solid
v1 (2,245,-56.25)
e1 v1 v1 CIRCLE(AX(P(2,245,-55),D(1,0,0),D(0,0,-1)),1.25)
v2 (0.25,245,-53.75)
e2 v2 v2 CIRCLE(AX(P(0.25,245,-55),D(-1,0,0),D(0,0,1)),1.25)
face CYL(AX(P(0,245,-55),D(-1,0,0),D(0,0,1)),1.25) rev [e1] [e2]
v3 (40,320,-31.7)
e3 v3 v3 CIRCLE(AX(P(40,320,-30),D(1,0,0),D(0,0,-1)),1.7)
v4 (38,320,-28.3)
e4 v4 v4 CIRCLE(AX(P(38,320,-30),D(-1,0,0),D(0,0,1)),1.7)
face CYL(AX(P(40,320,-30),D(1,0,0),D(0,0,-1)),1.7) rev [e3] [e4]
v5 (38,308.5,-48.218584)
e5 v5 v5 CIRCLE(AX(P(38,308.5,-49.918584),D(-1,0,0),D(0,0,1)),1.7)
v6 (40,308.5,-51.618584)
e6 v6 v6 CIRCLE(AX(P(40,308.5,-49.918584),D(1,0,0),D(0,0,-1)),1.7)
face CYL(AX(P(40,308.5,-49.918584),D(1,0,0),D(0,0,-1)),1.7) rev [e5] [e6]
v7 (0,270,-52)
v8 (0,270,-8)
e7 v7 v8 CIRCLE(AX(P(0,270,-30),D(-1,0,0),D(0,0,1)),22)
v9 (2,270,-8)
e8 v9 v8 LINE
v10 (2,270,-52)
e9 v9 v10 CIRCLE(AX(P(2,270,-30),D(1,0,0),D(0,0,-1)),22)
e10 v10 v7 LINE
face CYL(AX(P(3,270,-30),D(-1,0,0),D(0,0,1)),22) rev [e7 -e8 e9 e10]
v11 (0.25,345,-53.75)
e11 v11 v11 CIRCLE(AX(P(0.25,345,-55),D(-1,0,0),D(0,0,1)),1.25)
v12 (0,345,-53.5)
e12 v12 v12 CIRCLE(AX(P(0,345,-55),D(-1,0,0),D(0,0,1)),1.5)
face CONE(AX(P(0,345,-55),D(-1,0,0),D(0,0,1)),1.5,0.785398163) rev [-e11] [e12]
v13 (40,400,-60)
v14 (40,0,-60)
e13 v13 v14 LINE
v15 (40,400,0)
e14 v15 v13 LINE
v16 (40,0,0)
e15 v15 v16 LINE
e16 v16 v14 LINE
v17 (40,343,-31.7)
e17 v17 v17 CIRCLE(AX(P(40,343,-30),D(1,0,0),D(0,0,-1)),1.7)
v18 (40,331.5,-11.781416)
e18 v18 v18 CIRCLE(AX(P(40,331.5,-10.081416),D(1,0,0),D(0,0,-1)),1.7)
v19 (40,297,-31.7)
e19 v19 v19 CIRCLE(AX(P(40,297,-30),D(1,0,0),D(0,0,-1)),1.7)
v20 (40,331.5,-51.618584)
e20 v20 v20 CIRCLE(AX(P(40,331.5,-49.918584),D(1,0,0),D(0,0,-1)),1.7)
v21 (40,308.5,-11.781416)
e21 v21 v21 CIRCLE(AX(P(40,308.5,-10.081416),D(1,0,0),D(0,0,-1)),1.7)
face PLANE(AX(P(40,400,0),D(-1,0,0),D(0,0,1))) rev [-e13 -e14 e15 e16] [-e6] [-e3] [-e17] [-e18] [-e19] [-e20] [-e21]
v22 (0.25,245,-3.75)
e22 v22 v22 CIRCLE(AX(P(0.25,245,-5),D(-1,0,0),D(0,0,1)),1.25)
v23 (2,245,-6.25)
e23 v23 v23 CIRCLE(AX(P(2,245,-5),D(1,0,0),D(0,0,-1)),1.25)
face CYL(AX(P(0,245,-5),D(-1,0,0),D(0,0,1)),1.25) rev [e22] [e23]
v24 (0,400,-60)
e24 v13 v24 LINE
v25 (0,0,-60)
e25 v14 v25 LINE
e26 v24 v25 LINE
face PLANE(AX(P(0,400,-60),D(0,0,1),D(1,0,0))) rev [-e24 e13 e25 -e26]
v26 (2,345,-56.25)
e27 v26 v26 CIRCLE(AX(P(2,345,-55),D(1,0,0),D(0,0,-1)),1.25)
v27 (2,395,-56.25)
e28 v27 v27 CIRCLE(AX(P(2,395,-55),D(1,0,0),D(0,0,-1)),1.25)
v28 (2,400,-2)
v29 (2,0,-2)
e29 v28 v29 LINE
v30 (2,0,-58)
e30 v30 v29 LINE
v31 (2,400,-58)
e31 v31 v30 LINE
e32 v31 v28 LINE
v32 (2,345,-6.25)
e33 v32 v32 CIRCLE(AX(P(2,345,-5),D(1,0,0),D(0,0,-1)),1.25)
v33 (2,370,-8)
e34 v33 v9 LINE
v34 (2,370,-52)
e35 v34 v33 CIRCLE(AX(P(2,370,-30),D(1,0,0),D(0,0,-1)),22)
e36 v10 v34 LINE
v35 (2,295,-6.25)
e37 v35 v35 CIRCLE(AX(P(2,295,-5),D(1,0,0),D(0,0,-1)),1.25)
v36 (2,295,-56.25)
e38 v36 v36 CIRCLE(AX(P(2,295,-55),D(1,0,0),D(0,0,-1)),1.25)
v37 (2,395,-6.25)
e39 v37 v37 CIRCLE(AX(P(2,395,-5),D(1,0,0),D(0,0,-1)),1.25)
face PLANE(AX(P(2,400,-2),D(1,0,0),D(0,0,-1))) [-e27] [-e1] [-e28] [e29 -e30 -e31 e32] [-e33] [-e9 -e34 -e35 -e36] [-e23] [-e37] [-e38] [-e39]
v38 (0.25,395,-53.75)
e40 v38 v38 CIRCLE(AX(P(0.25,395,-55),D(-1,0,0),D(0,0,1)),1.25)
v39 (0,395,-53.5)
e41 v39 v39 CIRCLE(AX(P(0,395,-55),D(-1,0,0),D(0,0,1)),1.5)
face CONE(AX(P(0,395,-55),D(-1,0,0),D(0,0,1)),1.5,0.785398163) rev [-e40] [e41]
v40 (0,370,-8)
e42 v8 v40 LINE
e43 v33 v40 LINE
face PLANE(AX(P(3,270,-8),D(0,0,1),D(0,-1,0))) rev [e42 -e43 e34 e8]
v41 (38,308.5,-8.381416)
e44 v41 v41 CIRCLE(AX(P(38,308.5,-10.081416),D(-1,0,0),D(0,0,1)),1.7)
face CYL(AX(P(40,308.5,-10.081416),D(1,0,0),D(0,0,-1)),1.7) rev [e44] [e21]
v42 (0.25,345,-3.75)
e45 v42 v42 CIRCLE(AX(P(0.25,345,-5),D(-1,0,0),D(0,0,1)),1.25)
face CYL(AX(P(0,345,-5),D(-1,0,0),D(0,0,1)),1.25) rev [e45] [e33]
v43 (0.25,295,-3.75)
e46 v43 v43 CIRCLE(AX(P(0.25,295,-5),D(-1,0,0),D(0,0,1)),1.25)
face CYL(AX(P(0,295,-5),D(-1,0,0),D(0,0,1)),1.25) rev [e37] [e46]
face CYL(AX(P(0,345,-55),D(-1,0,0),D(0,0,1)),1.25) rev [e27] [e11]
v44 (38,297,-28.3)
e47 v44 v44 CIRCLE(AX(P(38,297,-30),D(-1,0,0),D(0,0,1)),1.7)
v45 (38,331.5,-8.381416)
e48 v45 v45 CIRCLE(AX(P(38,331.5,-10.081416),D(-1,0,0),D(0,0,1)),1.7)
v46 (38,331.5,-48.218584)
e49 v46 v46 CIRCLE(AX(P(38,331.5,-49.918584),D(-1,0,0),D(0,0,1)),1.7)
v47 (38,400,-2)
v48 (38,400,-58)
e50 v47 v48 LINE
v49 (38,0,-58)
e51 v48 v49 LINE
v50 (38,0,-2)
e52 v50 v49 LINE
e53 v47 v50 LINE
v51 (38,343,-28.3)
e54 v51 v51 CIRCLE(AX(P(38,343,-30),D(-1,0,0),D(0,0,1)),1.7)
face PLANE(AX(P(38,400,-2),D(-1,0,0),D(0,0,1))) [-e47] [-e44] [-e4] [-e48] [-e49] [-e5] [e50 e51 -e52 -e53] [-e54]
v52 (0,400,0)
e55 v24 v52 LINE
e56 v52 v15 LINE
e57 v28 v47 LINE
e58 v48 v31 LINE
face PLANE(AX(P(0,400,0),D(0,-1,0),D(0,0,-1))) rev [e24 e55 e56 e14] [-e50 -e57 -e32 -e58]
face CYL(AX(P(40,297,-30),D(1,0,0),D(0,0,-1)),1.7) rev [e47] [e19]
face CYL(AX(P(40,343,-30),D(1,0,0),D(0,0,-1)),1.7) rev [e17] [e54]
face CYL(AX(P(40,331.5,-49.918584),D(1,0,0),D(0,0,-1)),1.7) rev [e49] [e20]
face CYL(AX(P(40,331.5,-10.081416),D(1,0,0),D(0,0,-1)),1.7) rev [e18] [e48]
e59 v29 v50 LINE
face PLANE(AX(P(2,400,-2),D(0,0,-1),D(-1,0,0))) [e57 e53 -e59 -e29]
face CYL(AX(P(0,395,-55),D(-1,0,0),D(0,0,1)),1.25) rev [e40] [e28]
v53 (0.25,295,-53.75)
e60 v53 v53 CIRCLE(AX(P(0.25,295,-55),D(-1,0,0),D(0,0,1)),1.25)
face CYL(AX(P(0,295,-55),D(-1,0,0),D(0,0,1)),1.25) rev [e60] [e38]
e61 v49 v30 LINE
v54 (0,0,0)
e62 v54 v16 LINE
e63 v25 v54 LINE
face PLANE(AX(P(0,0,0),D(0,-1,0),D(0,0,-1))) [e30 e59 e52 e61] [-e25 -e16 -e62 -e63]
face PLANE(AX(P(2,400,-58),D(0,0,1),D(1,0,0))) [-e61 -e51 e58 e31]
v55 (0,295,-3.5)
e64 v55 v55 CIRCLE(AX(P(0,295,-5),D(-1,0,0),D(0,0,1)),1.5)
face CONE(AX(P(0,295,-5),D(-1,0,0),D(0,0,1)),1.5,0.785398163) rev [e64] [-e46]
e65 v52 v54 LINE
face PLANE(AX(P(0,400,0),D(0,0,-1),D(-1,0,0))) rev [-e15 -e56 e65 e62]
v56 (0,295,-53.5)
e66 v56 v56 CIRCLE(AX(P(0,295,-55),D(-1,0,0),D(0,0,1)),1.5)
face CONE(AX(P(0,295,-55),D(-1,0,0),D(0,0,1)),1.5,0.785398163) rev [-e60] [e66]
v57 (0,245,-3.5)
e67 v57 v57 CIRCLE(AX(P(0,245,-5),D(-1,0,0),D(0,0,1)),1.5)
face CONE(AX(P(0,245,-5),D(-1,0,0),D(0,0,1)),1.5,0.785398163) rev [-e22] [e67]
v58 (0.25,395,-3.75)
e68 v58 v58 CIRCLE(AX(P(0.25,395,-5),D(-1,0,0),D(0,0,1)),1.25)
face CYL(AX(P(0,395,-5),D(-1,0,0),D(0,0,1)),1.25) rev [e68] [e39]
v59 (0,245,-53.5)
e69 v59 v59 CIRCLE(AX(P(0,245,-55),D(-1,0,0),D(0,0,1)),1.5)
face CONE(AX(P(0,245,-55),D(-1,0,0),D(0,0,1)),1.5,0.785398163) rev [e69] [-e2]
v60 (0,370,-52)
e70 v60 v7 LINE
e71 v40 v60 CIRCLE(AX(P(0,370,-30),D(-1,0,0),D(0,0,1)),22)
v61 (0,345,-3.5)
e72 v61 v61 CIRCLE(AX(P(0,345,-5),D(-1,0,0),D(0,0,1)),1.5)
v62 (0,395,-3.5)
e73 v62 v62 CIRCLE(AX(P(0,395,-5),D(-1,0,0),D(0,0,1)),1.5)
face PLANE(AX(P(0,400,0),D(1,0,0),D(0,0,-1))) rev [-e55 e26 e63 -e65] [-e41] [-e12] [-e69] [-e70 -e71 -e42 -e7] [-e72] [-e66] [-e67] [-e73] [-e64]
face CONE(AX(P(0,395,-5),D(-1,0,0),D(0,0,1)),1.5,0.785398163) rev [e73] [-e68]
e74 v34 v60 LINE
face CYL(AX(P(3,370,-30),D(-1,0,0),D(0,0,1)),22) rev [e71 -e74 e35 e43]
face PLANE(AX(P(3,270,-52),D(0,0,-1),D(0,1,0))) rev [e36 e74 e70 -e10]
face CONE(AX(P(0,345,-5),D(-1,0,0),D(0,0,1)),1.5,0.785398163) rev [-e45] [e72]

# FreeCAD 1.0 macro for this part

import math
import FreeCAD as App
import Part
import Sketcher
from FreeCAD import Vector

doc = App.newDocument("Part")
params = doc.addObject("Spreadsheet::Sheet", "Params")
for row, (alias, value) in enumerate([
    ("sketch1_width", "40 mm"),
    ("sketch1_width2", "36 mm"),
    ("sketch1_height", "60 mm"),
    ("sketch1_height2", "56 mm"),
    ("pad1_length", "400 mm"),
    ("sketch2_diameter", "3.4 mm"),
    ("hole_diameter", "3.4 mm"),
    ("sketch3_radius", "22 mm"),
    ("sketch3_width", "100 mm"),
    ("pocket1_length", "3 mm"),
    ("sketch4_diameter", "2.5 mm"),
    ("hole2_diameter", "2.5 mm"),
    ("hole2_depth", "2 mm"),
    ("hole2_csink_diameter", "3 mm"),
], start=1):
    params.set(f"A{row}", alias)
    params.set(f"B{row}", "=" + value)
    params.setAlias(f"B{row}", alias)

body = doc.addObject("PartDesign::Body", "Body")

# Sketch on XZ plane
sketch1 = body.newObject("Sketcher::SketchObject", "Sketch")
sketch1.AttachmentSupport = (doc.getObject("XZ_Plane"), [""])
sketch1.MapMode = "FlatFace"
sketch1.addGeometry([
    Part.LineSegment(Vector(0, -60, 0), Vector(0, 0, 0)),  # 0
    Part.LineSegment(Vector(0, 0, 0), Vector(40, 0, 0)),  # 1
    Part.LineSegment(Vector(40, 0, 0), Vector(40, -60, 0)),  # 2
    Part.LineSegment(Vector(40, -60, 0), Vector(0, -60, 0)),  # 3
    Part.LineSegment(Vector(38, -2, 0), Vector(2, -2, 0)),  # 4
    Part.LineSegment(Vector(2, -2, 0), Vector(2, -58, 0)),  # 5
    Part.LineSegment(Vector(2, -58, 0), Vector(38, -58, 0)),  # 6
    Part.LineSegment(Vector(38, -58, 0), Vector(38, -2, 0)),  # 7
], False)
sketch1.addConstraint([
    Sketcher.Constraint("Coincident", 0, 2, 1, 1),
    Sketcher.Constraint("Coincident", 1, 2, 2, 1),
    Sketcher.Constraint("Coincident", 2, 2, 3, 1),
    Sketcher.Constraint("Coincident", 3, 2, 0, 1),
    Sketcher.Constraint("Coincident", 4, 2, 5, 1),
    Sketcher.Constraint("Coincident", 5, 2, 6, 1),
    Sketcher.Constraint("Coincident", 6, 2, 7, 1),
    Sketcher.Constraint("Coincident", 7, 2, 4, 1),
    Sketcher.Constraint("Vertical", 0),
    Sketcher.Constraint("Horizontal", 1),
    Sketcher.Constraint("Vertical", 2),
    Sketcher.Constraint("Horizontal", 3),
    Sketcher.Constraint("Horizontal", 4),
    Sketcher.Constraint("Vertical", 5),
    Sketcher.Constraint("Horizontal", 6),
    Sketcher.Constraint("Vertical", 7),
    Sketcher.Constraint("Coincident", 0, 2, -1, 1),
    Sketcher.Constraint("DistanceX", 1, 1, 1, 2, 40.0),
    Sketcher.Constraint("DistanceX", 4, 2, 4, 1, 36.0),
    Sketcher.Constraint("DistanceY", 0, 1, 0, 2, 60.0),
    Sketcher.Constraint("DistanceY", 5, 2, 5, 1, 56.0),
    Sketcher.Constraint("DistanceX", -1, 1, 4, 2, 2.0),
    Sketcher.Constraint("DistanceY", 4, 2, -1, 1, 2.0),
])
sketch1.setExpression("Constraints[17]", "Params.sketch1_width")
sketch1.setExpression("Constraints[18]", "Params.sketch1_width2")
sketch1.setExpression("Constraints[19]", "Params.sketch1_height")
sketch1.setExpression("Constraints[20]", "Params.sketch1_height2")
pad1 = body.newObject("PartDesign::Pad", "Pad")
pad1.Profile = sketch1
pad1.setExpression("Length", "Params.pad1_length")
pad1.Reversed = True

# Sketch on YZ plane
sketch2 = body.newObject("Sketcher::SketchObject", "Sketch001")
sketch2.AttachmentSupport = (doc.getObject("YZ_Plane"), [""])
sketch2.MapMode = "FlatFace"
sketch2.AttachmentOffset = App.Placement(Vector(0, 0, 40), App.Rotation())
sketch2.addGeometry([
    Part.Circle(Vector(320, -30, 0), Vector(0, 0, 1), 1.7),  # 0
    Part.Circle(Vector(343, -30, 0), Vector(0, 0, 1), 1.7),  # 1
    Part.Circle(Vector(331.5, -49.9, 0), Vector(0, 0, 1), 1.7),  # 2
    Part.Circle(Vector(308.5, -49.9, 0), Vector(0, 0, 1), 1.7),  # 3
    Part.Circle(Vector(297, -30, 0), Vector(0, 0, 1), 1.7),  # 4
    Part.Circle(Vector(308.5, -10.1, 0), Vector(0, 0, 1), 1.7),  # 5
    Part.Circle(Vector(331.5, -10.1, 0), Vector(0, 0, 1), 1.7),  # 6
], False)
sketch2.addConstraint([
    Sketcher.Constraint("Equal", 0, 1),
    Sketcher.Constraint("Equal", 1, 2),
    Sketcher.Constraint("Equal", 2, 3),
    Sketcher.Constraint("Equal", 3, 4),
    Sketcher.Constraint("Equal", 4, 5),
    Sketcher.Constraint("Equal", 5, 6),
    Sketcher.Constraint("Horizontal", 0, 3, 1, 3),
    Sketcher.Constraint("Horizontal", 2, 3, 3, 3),
    Sketcher.Constraint("Horizontal", 1, 3, 4, 3),
    Sketcher.Constraint("Horizontal", 5, 3, 6, 3),
    Sketcher.Constraint("Vertical", 3, 3, 5, 3),
    Sketcher.Constraint("Vertical", 2, 3, 6, 3),
    Sketcher.Constraint("Diameter", 0, 3.4),
    Sketcher.Constraint("DistanceX", -1, 1, 0, 3, 320.0),
    Sketcher.Constraint("DistanceY", 0, 3, -1, 1, 30.0),
    Sketcher.Constraint("DistanceX", -1, 1, 1, 3, 343.0),
    Sketcher.Constraint("DistanceX", -1, 1, 4, 3, 297.0),
    Sketcher.Constraint("DistanceX", 3, 3, 2, 3, 23.0),
    Sketcher.Constraint("DistanceX", -1, 1, 2, 3, 331.5),
    Sketcher.Constraint("DistanceY", 3, 3, 5, 3, 39.837169),
    Sketcher.Constraint("DistanceY", 2, 3, -1, 1, 49.918584),
])
sketch2.setExpression("Constraints[12]", "Params.sketch2_diameter")
doc.recompute()
hole = body.newObject("PartDesign::Hole", "Hole")
hole.Profile = sketch2
hole.ThreadType = "None"
hole.setExpression("Diameter", "Params.hole_diameter")
hole.DepthType = "ThroughAll"

# Sketch on YZ plane
sketch3 = body.newObject("Sketcher::SketchObject", "Sketch002")
sketch3.AttachmentSupport = (doc.getObject("YZ_Plane"), [""])
sketch3.MapMode = "FlatFace"
sketch3.addGeometry([
    Part.LineSegment(Vector(370, -52, 0), Vector(270, -52, 0)),
    Part.ArcOfCircle(Part.Circle(Vector(270, -30, 0), Vector(0, 0, 1), 22), math.radians(90), math.radians(270)),
    Part.LineSegment(Vector(270, -8, 0), Vector(370, -8, 0)),
    Part.ArcOfCircle(Part.Circle(Vector(370, -30, 0), Vector(0, 0, 1), 22), math.radians(-90), math.radians(90)),
], False)
sketch3.addConstraint([
    Sketcher.Constraint("Tangent", 0, 2, 1, 2),
    Sketcher.Constraint("Tangent", 1, 1, 2, 1),
    Sketcher.Constraint("Tangent", 2, 2, 3, 2),
    Sketcher.Constraint("Tangent", 3, 1, 0, 1),
    Sketcher.Constraint("Horizontal", 0),
    Sketcher.Constraint("Horizontal", 2),
    Sketcher.Constraint("Radius", 1, 22.0),
    Sketcher.Constraint("DistanceX", 0, 2, 0, 1, 100.0),
    Sketcher.Constraint("DistanceX", -1, 1, 1, 3, 270.0),
    Sketcher.Constraint("DistanceY", 1, 3, -1, 1, 30.0),
])
sketch3.setExpression("Constraints[6]", "Params.sketch3_radius")
sketch3.setExpression("Constraints[7]", "Params.sketch3_width")
pocket1 = body.newObject("PartDesign::Pocket", "Pocket")
pocket1.Profile = sketch3
pocket1.setExpression("Length", "Params.pocket1_length")
pocket1.Reversed = True

# Sketch on YZ plane
sketch4 = body.newObject("Sketcher::SketchObject", "Sketch003")
sketch4.AttachmentSupport = (doc.getObject("YZ_Plane"), [""])
sketch4.MapMode = "FlatFace"
sketch4.addGeometry([
    Part.Circle(Vector(245, -5, 0), Vector(0, 0, 1), 1.2),  # 0
    Part.Circle(Vector(395, -55, 0), Vector(0, 0, 1), 1.2),  # 1
    Part.Circle(Vector(245, -55, 0), Vector(0, 0, 1), 1.2),  # 2
    Part.Circle(Vector(345, -55, 0), Vector(0, 0, 1), 1.2),  # 3
    Part.Circle(Vector(295, -55, 0), Vector(0, 0, 1), 1.2),  # 4
    Part.Circle(Vector(395, -5, 0), Vector(0, 0, 1), 1.2),  # 5
    Part.Circle(Vector(345, -5, 0), Vector(0, 0, 1), 1.2),  # 6
    Part.Circle(Vector(295, -5, 0), Vector(0, 0, 1), 1.2),  # 7
], False)
sketch4.addConstraint([
    Sketcher.Constraint("Equal", 0, 1),
    Sketcher.Constraint("Equal", 1, 2),
    Sketcher.Constraint("Equal", 2, 3),
    Sketcher.Constraint("Equal", 3, 4),
    Sketcher.Constraint("Equal", 4, 5),
    Sketcher.Constraint("Equal", 5, 6),
    Sketcher.Constraint("Equal", 6, 7),
    Sketcher.Constraint("Horizontal", 1, 3, 2, 3),
    Sketcher.Constraint("Horizontal", 2, 3, 3, 3),
    Sketcher.Constraint("Horizontal", 3, 3, 4, 3),
    Sketcher.Constraint("Horizontal", 0, 3, 5, 3),
    Sketcher.Constraint("Horizontal", 5, 3, 6, 3),
    Sketcher.Constraint("Horizontal", 6, 3, 7, 3),
    Sketcher.Constraint("Vertical", 0, 3, 2, 3),
    Sketcher.Constraint("Vertical", 1, 3, 5, 3),
    Sketcher.Constraint("Vertical", 3, 3, 6, 3),
    Sketcher.Constraint("Vertical", 4, 3, 7, 3),
    Sketcher.Constraint("Diameter", 0, 2.5),
    Sketcher.Constraint("DistanceX", -1, 1, 0, 3, 245.0),
    Sketcher.Constraint("DistanceY", 0, 3, -1, 1, 5.0),
    Sketcher.Constraint("DistanceX", -1, 1, 1, 3, 395.0),
    Sketcher.Constraint("DistanceY", 1, 3, -1, 1, 55.0),
    Sketcher.Constraint("DistanceX", -1, 1, 3, 3, 345.0),
    Sketcher.Constraint("DistanceX", -1, 1, 4, 3, 295.0),
])
sketch4.setExpression("Constraints[17]", "Params.sketch4_diameter")
doc.recompute()
hole2 = body.newObject("PartDesign::Hole", "Hole001")
hole2.Profile = sketch4
hole2.ThreadType = "None"
hole2.setExpression("Diameter", "Params.hole2_diameter")
hole2.DepthType = "Dimension"
hole2.setExpression("Depth", "Params.hole2_depth")
hole2.DrillPoint = "Flat"
hole2.HoleCutType = "Countersink"
hole2.setExpression("HoleCutDiameter", "Params.hole2_csink_diameter")
hole2.HoleCutCountersinkAngle = 90
hole2.Reversed = True

doc.recompute()
